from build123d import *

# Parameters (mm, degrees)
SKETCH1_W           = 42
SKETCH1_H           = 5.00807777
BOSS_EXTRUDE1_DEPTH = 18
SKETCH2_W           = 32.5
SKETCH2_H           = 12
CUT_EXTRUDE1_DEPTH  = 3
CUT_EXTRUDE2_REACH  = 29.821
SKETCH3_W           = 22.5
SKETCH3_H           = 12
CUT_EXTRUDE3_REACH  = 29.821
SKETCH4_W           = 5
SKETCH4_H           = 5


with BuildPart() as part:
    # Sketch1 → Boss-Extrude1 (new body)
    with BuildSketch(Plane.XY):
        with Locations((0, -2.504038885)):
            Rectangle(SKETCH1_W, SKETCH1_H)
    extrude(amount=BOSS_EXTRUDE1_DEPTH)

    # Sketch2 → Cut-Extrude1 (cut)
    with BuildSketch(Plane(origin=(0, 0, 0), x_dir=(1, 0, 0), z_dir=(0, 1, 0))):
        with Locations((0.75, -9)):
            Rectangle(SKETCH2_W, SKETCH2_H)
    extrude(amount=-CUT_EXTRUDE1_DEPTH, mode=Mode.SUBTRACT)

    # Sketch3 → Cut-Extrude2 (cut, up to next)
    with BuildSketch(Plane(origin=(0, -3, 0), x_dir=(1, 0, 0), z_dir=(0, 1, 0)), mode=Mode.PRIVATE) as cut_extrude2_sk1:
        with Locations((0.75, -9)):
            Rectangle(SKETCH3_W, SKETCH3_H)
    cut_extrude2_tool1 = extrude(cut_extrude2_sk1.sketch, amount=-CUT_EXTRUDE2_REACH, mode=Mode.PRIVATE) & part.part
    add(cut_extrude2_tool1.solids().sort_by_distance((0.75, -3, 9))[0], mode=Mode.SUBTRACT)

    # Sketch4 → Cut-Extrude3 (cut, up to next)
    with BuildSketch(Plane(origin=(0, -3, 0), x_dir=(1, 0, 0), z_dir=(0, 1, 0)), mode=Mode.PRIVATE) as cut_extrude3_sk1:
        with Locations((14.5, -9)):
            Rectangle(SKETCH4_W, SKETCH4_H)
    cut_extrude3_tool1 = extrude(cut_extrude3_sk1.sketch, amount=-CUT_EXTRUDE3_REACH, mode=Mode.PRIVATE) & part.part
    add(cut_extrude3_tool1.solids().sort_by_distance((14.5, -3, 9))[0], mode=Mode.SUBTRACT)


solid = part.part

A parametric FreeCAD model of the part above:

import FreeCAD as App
import Part
import Sketcher
from FreeCAD import Vector

doc = App.newDocument("Part")
body = doc.addObject("PartDesign::Body", "Body")

# Sketch on XY plane
sketch1 = body.newObject("Sketcher::SketchObject", "Sketch")
sketch1.AttachmentSupport = (doc.getObject("XY_Plane"), [""])
sketch1.MapMode = "FlatFace"
sketch1.addGeometry([
    Part.LineSegment(Vector(-21, 0, 0), Vector(-21, -5.008078, 0)),
    Part.LineSegment(Vector(-21, -5.008078, 0), Vector(21, -5.008078, 0)),
    Part.LineSegment(Vector(21, -5.008078, 0), Vector(21, 0, 0)),
    Part.LineSegment(Vector(21, 0, 0), Vector(-21, 0, 0)),
], False)
sketch1.addConstraint([
    Sketcher.Constraint("Coincident", 0, 2, 1, 1),
    Sketcher.Constraint("Coincident", 1, 2, 2, 1),
    Sketcher.Constraint("Coincident", 2, 2, 3, 1),
    Sketcher.Constraint("Coincident", 3, 2, 0, 1),
    Sketcher.Constraint("Vertical", 0),
    Sketcher.Constraint("Horizontal", 1),
    Sketcher.Constraint("Vertical", 2),
    Sketcher.Constraint("Horizontal", 3),
    Sketcher.Constraint("Symmetric", 2, 2, 3, 2, -1, 1),
    Sketcher.Constraint("DistanceX", 1, 1, 1, 2, 42.0),
    Sketcher.Constraint("DistanceY", 0, 2, 0, 1, 5.008078),
])
pad1 = body.newObject("PartDesign::Pad", "Pad")
pad1.Profile = sketch1
pad1.Length = 18

# Sketch on XZ plane
sketch2 = body.newObject("Sketcher::SketchObject", "Sketch001")
sketch2.AttachmentSupport = (doc.getObject("XZ_Plane"), [""])
sketch2.MapMode = "FlatFace"
sketch2.addGeometry([
    Part.LineSegment(Vector(-15.5, 3, 0), Vector(-15.5, 15, 0)),
    Part.LineSegment(Vector(-15.5, 15, 0), Vector(17, 15, 0)),
    Part.LineSegment(Vector(17, 15, 0), Vector(17, 3, 0)),
    Part.LineSegment(Vector(17, 3, 0), Vector(-15.5, 3, 0)),
], False)
sketch2.addConstraint([
    Sketcher.Constraint("Coincident", 0, 2, 1, 1),
    Sketcher.Constraint("Coincident", 1, 2, 2, 1),
    Sketcher.Constraint("Coincident", 2, 2, 3, 1),
    Sketcher.Constraint("Coincident", 3, 2, 0, 1),
    Sketcher.Constraint("Vertical", 0),
    Sketcher.Constraint("Horizontal", 1),
    Sketcher.Constraint("Vertical", 2),
    Sketcher.Constraint("Horizontal", 3),
    Sketcher.Constraint("DistanceY", 0, 1, 0, 2, 12.0),
    Sketcher.Constraint("DistanceX", 1, 1, 1, 2, 32.5),
    Sketcher.Constraint("DistanceY", -1, 1, 0, 2, 15.0),
    Sketcher.Constraint("DistanceX", -1, 1, 1, 2, 17.0),
])
pocket1 = body.newObject("PartDesign::Pocket", "Pocket")
pocket1.Profile = sketch2
pocket1.Length = 3
pocket1.Reversed = True

# Sketch on XZ plane
sketch3 = body.newObject("Sketcher::SketchObject", "Sketch002")
sketch3.AttachmentSupport = (doc.getObject("XZ_Plane"), [""])
sketch3.MapMode = "FlatFace"
sketch3.AttachmentOffset = App.Placement(Vector(0, 0, 3), App.Rotation())
sketch3.addGeometry([
    Part.LineSegment(Vector(-10.5, 3, 0), Vector(-10.5, 15, 0)),
    Part.LineSegment(Vector(-10.5, 15, 0), Vector(12, 15, 0)),
    Part.LineSegment(Vector(12, 15, 0), Vector(12, 3, 0)),
    Part.LineSegment(Vector(12, 3, 0), Vector(-10.5, 3, 0)),
], False)
sketch3.addConstraint([
    Sketcher.Constraint("Coincident", 0, 2, 1, 1),
    Sketcher.Constraint("Coincident", 1, 2, 2, 1),
    Sketcher.Constraint("Coincident", 2, 2, 3, 1),
    Sketcher.Constraint("Coincident", 3, 2, 0, 1),
    Sketcher.Constraint("Vertical", 0),
    Sketcher.Constraint("Horizontal", 1),
    Sketcher.Constraint("Vertical", 2),
    Sketcher.Constraint("Horizontal", 3),
    Sketcher.Constraint("DistanceY", 0, 1, 0, 2, 12.0),
    Sketcher.Constraint("DistanceX", 1, 1, 1, 2, 22.5),
    Sketcher.Constraint("DistanceY", -1, 1, 0, 2, 15.0),
    Sketcher.Constraint("DistanceX", -1, 1, 1, 2, 12.0),
])
pocket2 = body.newObject("PartDesign::Pocket", "Pocket001")
pocket2.Profile = sketch3
pocket2.Type = "UpToFirst"
pocket2.Reversed = True

# Sketch on XZ plane
sketch4 = body.newObject("Sketcher::SketchObject", "Sketch003")
sketch4.AttachmentSupport = (doc.getObject("XZ_Plane"), [""])
sketch4.MapMode = "FlatFace"
sketch4.AttachmentOffset = App.Placement(Vector(0, 0, 3), App.Rotation())
sketch4.addGeometry([
    Part.LineSegment(Vector(12, 6.5, 0), Vector(12, 11.5, 0)),
    Part.LineSegment(Vector(12, 11.5, 0), Vector(17, 11.5, 0)),
    Part.LineSegment(Vector(17, 11.5, 0), Vector(17, 6.5, 0)),
    Part.LineSegment(Vector(17, 6.5, 0), Vector(12, 6.5, 0)),
], False)
sketch4.addConstraint([
    Sketcher.Constraint("Coincident", 0, 2, 1, 1),
    Sketcher.Constraint("Coincident", 1, 2, 2, 1),
    Sketcher.Constraint("Coincident", 2, 2, 3, 1),
    Sketcher.Constraint("Coincident", 3, 2, 0, 1),
    Sketcher.Constraint("Vertical", 0),
    Sketcher.Constraint("Horizontal", 1),
    Sketcher.Constraint("Vertical", 2),
    Sketcher.Constraint("Horizontal", 3),
    Sketcher.Constraint("Equal", 3, 0),
    Sketcher.Constraint("DistanceX", 1, 1, 1, 2, 5.0),
    Sketcher.Constraint("DistanceX", -1, 1, 0, 2, 12.0),
    Sketcher.Constraint("DistanceY", -1, 1, 0, 2, 11.5),
])
pocket3 = body.newObject("PartDesign::Pocket", "Pocket002")
pocket3.Profile = sketch4
pocket3.Type = "UpToFirst"
pocket3.Reversed = True

doc.recompute()
